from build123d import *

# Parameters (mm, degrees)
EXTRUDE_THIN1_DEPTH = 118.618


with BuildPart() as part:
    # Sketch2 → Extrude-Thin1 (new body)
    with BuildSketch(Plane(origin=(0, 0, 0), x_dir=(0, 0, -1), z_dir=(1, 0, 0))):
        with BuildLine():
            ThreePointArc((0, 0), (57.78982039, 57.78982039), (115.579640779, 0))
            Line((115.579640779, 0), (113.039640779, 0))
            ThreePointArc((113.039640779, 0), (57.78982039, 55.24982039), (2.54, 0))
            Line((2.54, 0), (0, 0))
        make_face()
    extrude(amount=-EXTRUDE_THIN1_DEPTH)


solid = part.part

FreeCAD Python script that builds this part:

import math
import FreeCAD as App
import Part
import Sketcher

V = App.Vector
Q = App.Units.Quantity

doc = App.newDocument("Part")
body = doc.addObject("PartDesign::Body", "Body")

sketch1 = body.newObject("Sketcher::SketchObject", "Sketch")
sketch1.AttachmentSupport = (doc.getObject("YZ_Plane"), [""])
sketch1.MapMode = "FlatFace"
sketch1.addGeometry(Part.ArcOfCircle(Part.Circle(V(0, -57.8, 0), V(0, 0, 1), 57.8), math.radians(-90), math.radians(90)), False)
sketch1.addGeometry(Part.LineSegment(V(0, 0, 0), V(0, -2.5, 0)), False)
sketch1.addGeometry(Part.ArcOfCircle(Part.Circle(V(0, -57.8, 0), V(0, 0, 1), 55.2), math.radians(-90), math.radians(90)), False)
sketch1.addGeometry(Part.LineSegment(V(0, -113, 0), V(0, -115.6, 0)), False)
sketch1.addConstraint(Sketcher.Constraint("Coincident", 0, 2, 1, 1))
sketch1.addConstraint(Sketcher.Constraint("Coincident", 1, 2, 2, 2))
sketch1.addConstraint(Sketcher.Constraint("Coincident", 2, 1, 3, 1))
sketch1.addConstraint(Sketcher.Constraint("Coincident", 3, 2, 0, 1))
sketch1.addConstraint(Sketcher.Constraint("Vertical", 1))
sketch1.addConstraint(Sketcher.Constraint("Vertical", 3))
sketch1.addConstraint(Sketcher.Constraint("Coincident", 0, 2, -1, 1))
sketch1.addConstraint(Sketcher.Constraint("Coincident", 2, 3, 0, 3))
sketch1.addConstraint(Sketcher.Constraint("PointOnObject", 0, 3, -2))
sketch1.addConstraint(Sketcher.Constraint("PointOnObject", 2, 1, -2))
sketch1.addConstraint(Sketcher.Constraint("DistanceY", 1, 2, 1, 1, Q("0.1 in")))
sketch1.addConstraint(Sketcher.Constraint("Radius", 0, Q("57.78982 mm")))
pad1 = body.newObject("PartDesign::Pad", "Pad")
pad1.Profile = sketch1
pad1.Length = Q("4.67 in")
pad1.Reversed = True

doc.recompute()
